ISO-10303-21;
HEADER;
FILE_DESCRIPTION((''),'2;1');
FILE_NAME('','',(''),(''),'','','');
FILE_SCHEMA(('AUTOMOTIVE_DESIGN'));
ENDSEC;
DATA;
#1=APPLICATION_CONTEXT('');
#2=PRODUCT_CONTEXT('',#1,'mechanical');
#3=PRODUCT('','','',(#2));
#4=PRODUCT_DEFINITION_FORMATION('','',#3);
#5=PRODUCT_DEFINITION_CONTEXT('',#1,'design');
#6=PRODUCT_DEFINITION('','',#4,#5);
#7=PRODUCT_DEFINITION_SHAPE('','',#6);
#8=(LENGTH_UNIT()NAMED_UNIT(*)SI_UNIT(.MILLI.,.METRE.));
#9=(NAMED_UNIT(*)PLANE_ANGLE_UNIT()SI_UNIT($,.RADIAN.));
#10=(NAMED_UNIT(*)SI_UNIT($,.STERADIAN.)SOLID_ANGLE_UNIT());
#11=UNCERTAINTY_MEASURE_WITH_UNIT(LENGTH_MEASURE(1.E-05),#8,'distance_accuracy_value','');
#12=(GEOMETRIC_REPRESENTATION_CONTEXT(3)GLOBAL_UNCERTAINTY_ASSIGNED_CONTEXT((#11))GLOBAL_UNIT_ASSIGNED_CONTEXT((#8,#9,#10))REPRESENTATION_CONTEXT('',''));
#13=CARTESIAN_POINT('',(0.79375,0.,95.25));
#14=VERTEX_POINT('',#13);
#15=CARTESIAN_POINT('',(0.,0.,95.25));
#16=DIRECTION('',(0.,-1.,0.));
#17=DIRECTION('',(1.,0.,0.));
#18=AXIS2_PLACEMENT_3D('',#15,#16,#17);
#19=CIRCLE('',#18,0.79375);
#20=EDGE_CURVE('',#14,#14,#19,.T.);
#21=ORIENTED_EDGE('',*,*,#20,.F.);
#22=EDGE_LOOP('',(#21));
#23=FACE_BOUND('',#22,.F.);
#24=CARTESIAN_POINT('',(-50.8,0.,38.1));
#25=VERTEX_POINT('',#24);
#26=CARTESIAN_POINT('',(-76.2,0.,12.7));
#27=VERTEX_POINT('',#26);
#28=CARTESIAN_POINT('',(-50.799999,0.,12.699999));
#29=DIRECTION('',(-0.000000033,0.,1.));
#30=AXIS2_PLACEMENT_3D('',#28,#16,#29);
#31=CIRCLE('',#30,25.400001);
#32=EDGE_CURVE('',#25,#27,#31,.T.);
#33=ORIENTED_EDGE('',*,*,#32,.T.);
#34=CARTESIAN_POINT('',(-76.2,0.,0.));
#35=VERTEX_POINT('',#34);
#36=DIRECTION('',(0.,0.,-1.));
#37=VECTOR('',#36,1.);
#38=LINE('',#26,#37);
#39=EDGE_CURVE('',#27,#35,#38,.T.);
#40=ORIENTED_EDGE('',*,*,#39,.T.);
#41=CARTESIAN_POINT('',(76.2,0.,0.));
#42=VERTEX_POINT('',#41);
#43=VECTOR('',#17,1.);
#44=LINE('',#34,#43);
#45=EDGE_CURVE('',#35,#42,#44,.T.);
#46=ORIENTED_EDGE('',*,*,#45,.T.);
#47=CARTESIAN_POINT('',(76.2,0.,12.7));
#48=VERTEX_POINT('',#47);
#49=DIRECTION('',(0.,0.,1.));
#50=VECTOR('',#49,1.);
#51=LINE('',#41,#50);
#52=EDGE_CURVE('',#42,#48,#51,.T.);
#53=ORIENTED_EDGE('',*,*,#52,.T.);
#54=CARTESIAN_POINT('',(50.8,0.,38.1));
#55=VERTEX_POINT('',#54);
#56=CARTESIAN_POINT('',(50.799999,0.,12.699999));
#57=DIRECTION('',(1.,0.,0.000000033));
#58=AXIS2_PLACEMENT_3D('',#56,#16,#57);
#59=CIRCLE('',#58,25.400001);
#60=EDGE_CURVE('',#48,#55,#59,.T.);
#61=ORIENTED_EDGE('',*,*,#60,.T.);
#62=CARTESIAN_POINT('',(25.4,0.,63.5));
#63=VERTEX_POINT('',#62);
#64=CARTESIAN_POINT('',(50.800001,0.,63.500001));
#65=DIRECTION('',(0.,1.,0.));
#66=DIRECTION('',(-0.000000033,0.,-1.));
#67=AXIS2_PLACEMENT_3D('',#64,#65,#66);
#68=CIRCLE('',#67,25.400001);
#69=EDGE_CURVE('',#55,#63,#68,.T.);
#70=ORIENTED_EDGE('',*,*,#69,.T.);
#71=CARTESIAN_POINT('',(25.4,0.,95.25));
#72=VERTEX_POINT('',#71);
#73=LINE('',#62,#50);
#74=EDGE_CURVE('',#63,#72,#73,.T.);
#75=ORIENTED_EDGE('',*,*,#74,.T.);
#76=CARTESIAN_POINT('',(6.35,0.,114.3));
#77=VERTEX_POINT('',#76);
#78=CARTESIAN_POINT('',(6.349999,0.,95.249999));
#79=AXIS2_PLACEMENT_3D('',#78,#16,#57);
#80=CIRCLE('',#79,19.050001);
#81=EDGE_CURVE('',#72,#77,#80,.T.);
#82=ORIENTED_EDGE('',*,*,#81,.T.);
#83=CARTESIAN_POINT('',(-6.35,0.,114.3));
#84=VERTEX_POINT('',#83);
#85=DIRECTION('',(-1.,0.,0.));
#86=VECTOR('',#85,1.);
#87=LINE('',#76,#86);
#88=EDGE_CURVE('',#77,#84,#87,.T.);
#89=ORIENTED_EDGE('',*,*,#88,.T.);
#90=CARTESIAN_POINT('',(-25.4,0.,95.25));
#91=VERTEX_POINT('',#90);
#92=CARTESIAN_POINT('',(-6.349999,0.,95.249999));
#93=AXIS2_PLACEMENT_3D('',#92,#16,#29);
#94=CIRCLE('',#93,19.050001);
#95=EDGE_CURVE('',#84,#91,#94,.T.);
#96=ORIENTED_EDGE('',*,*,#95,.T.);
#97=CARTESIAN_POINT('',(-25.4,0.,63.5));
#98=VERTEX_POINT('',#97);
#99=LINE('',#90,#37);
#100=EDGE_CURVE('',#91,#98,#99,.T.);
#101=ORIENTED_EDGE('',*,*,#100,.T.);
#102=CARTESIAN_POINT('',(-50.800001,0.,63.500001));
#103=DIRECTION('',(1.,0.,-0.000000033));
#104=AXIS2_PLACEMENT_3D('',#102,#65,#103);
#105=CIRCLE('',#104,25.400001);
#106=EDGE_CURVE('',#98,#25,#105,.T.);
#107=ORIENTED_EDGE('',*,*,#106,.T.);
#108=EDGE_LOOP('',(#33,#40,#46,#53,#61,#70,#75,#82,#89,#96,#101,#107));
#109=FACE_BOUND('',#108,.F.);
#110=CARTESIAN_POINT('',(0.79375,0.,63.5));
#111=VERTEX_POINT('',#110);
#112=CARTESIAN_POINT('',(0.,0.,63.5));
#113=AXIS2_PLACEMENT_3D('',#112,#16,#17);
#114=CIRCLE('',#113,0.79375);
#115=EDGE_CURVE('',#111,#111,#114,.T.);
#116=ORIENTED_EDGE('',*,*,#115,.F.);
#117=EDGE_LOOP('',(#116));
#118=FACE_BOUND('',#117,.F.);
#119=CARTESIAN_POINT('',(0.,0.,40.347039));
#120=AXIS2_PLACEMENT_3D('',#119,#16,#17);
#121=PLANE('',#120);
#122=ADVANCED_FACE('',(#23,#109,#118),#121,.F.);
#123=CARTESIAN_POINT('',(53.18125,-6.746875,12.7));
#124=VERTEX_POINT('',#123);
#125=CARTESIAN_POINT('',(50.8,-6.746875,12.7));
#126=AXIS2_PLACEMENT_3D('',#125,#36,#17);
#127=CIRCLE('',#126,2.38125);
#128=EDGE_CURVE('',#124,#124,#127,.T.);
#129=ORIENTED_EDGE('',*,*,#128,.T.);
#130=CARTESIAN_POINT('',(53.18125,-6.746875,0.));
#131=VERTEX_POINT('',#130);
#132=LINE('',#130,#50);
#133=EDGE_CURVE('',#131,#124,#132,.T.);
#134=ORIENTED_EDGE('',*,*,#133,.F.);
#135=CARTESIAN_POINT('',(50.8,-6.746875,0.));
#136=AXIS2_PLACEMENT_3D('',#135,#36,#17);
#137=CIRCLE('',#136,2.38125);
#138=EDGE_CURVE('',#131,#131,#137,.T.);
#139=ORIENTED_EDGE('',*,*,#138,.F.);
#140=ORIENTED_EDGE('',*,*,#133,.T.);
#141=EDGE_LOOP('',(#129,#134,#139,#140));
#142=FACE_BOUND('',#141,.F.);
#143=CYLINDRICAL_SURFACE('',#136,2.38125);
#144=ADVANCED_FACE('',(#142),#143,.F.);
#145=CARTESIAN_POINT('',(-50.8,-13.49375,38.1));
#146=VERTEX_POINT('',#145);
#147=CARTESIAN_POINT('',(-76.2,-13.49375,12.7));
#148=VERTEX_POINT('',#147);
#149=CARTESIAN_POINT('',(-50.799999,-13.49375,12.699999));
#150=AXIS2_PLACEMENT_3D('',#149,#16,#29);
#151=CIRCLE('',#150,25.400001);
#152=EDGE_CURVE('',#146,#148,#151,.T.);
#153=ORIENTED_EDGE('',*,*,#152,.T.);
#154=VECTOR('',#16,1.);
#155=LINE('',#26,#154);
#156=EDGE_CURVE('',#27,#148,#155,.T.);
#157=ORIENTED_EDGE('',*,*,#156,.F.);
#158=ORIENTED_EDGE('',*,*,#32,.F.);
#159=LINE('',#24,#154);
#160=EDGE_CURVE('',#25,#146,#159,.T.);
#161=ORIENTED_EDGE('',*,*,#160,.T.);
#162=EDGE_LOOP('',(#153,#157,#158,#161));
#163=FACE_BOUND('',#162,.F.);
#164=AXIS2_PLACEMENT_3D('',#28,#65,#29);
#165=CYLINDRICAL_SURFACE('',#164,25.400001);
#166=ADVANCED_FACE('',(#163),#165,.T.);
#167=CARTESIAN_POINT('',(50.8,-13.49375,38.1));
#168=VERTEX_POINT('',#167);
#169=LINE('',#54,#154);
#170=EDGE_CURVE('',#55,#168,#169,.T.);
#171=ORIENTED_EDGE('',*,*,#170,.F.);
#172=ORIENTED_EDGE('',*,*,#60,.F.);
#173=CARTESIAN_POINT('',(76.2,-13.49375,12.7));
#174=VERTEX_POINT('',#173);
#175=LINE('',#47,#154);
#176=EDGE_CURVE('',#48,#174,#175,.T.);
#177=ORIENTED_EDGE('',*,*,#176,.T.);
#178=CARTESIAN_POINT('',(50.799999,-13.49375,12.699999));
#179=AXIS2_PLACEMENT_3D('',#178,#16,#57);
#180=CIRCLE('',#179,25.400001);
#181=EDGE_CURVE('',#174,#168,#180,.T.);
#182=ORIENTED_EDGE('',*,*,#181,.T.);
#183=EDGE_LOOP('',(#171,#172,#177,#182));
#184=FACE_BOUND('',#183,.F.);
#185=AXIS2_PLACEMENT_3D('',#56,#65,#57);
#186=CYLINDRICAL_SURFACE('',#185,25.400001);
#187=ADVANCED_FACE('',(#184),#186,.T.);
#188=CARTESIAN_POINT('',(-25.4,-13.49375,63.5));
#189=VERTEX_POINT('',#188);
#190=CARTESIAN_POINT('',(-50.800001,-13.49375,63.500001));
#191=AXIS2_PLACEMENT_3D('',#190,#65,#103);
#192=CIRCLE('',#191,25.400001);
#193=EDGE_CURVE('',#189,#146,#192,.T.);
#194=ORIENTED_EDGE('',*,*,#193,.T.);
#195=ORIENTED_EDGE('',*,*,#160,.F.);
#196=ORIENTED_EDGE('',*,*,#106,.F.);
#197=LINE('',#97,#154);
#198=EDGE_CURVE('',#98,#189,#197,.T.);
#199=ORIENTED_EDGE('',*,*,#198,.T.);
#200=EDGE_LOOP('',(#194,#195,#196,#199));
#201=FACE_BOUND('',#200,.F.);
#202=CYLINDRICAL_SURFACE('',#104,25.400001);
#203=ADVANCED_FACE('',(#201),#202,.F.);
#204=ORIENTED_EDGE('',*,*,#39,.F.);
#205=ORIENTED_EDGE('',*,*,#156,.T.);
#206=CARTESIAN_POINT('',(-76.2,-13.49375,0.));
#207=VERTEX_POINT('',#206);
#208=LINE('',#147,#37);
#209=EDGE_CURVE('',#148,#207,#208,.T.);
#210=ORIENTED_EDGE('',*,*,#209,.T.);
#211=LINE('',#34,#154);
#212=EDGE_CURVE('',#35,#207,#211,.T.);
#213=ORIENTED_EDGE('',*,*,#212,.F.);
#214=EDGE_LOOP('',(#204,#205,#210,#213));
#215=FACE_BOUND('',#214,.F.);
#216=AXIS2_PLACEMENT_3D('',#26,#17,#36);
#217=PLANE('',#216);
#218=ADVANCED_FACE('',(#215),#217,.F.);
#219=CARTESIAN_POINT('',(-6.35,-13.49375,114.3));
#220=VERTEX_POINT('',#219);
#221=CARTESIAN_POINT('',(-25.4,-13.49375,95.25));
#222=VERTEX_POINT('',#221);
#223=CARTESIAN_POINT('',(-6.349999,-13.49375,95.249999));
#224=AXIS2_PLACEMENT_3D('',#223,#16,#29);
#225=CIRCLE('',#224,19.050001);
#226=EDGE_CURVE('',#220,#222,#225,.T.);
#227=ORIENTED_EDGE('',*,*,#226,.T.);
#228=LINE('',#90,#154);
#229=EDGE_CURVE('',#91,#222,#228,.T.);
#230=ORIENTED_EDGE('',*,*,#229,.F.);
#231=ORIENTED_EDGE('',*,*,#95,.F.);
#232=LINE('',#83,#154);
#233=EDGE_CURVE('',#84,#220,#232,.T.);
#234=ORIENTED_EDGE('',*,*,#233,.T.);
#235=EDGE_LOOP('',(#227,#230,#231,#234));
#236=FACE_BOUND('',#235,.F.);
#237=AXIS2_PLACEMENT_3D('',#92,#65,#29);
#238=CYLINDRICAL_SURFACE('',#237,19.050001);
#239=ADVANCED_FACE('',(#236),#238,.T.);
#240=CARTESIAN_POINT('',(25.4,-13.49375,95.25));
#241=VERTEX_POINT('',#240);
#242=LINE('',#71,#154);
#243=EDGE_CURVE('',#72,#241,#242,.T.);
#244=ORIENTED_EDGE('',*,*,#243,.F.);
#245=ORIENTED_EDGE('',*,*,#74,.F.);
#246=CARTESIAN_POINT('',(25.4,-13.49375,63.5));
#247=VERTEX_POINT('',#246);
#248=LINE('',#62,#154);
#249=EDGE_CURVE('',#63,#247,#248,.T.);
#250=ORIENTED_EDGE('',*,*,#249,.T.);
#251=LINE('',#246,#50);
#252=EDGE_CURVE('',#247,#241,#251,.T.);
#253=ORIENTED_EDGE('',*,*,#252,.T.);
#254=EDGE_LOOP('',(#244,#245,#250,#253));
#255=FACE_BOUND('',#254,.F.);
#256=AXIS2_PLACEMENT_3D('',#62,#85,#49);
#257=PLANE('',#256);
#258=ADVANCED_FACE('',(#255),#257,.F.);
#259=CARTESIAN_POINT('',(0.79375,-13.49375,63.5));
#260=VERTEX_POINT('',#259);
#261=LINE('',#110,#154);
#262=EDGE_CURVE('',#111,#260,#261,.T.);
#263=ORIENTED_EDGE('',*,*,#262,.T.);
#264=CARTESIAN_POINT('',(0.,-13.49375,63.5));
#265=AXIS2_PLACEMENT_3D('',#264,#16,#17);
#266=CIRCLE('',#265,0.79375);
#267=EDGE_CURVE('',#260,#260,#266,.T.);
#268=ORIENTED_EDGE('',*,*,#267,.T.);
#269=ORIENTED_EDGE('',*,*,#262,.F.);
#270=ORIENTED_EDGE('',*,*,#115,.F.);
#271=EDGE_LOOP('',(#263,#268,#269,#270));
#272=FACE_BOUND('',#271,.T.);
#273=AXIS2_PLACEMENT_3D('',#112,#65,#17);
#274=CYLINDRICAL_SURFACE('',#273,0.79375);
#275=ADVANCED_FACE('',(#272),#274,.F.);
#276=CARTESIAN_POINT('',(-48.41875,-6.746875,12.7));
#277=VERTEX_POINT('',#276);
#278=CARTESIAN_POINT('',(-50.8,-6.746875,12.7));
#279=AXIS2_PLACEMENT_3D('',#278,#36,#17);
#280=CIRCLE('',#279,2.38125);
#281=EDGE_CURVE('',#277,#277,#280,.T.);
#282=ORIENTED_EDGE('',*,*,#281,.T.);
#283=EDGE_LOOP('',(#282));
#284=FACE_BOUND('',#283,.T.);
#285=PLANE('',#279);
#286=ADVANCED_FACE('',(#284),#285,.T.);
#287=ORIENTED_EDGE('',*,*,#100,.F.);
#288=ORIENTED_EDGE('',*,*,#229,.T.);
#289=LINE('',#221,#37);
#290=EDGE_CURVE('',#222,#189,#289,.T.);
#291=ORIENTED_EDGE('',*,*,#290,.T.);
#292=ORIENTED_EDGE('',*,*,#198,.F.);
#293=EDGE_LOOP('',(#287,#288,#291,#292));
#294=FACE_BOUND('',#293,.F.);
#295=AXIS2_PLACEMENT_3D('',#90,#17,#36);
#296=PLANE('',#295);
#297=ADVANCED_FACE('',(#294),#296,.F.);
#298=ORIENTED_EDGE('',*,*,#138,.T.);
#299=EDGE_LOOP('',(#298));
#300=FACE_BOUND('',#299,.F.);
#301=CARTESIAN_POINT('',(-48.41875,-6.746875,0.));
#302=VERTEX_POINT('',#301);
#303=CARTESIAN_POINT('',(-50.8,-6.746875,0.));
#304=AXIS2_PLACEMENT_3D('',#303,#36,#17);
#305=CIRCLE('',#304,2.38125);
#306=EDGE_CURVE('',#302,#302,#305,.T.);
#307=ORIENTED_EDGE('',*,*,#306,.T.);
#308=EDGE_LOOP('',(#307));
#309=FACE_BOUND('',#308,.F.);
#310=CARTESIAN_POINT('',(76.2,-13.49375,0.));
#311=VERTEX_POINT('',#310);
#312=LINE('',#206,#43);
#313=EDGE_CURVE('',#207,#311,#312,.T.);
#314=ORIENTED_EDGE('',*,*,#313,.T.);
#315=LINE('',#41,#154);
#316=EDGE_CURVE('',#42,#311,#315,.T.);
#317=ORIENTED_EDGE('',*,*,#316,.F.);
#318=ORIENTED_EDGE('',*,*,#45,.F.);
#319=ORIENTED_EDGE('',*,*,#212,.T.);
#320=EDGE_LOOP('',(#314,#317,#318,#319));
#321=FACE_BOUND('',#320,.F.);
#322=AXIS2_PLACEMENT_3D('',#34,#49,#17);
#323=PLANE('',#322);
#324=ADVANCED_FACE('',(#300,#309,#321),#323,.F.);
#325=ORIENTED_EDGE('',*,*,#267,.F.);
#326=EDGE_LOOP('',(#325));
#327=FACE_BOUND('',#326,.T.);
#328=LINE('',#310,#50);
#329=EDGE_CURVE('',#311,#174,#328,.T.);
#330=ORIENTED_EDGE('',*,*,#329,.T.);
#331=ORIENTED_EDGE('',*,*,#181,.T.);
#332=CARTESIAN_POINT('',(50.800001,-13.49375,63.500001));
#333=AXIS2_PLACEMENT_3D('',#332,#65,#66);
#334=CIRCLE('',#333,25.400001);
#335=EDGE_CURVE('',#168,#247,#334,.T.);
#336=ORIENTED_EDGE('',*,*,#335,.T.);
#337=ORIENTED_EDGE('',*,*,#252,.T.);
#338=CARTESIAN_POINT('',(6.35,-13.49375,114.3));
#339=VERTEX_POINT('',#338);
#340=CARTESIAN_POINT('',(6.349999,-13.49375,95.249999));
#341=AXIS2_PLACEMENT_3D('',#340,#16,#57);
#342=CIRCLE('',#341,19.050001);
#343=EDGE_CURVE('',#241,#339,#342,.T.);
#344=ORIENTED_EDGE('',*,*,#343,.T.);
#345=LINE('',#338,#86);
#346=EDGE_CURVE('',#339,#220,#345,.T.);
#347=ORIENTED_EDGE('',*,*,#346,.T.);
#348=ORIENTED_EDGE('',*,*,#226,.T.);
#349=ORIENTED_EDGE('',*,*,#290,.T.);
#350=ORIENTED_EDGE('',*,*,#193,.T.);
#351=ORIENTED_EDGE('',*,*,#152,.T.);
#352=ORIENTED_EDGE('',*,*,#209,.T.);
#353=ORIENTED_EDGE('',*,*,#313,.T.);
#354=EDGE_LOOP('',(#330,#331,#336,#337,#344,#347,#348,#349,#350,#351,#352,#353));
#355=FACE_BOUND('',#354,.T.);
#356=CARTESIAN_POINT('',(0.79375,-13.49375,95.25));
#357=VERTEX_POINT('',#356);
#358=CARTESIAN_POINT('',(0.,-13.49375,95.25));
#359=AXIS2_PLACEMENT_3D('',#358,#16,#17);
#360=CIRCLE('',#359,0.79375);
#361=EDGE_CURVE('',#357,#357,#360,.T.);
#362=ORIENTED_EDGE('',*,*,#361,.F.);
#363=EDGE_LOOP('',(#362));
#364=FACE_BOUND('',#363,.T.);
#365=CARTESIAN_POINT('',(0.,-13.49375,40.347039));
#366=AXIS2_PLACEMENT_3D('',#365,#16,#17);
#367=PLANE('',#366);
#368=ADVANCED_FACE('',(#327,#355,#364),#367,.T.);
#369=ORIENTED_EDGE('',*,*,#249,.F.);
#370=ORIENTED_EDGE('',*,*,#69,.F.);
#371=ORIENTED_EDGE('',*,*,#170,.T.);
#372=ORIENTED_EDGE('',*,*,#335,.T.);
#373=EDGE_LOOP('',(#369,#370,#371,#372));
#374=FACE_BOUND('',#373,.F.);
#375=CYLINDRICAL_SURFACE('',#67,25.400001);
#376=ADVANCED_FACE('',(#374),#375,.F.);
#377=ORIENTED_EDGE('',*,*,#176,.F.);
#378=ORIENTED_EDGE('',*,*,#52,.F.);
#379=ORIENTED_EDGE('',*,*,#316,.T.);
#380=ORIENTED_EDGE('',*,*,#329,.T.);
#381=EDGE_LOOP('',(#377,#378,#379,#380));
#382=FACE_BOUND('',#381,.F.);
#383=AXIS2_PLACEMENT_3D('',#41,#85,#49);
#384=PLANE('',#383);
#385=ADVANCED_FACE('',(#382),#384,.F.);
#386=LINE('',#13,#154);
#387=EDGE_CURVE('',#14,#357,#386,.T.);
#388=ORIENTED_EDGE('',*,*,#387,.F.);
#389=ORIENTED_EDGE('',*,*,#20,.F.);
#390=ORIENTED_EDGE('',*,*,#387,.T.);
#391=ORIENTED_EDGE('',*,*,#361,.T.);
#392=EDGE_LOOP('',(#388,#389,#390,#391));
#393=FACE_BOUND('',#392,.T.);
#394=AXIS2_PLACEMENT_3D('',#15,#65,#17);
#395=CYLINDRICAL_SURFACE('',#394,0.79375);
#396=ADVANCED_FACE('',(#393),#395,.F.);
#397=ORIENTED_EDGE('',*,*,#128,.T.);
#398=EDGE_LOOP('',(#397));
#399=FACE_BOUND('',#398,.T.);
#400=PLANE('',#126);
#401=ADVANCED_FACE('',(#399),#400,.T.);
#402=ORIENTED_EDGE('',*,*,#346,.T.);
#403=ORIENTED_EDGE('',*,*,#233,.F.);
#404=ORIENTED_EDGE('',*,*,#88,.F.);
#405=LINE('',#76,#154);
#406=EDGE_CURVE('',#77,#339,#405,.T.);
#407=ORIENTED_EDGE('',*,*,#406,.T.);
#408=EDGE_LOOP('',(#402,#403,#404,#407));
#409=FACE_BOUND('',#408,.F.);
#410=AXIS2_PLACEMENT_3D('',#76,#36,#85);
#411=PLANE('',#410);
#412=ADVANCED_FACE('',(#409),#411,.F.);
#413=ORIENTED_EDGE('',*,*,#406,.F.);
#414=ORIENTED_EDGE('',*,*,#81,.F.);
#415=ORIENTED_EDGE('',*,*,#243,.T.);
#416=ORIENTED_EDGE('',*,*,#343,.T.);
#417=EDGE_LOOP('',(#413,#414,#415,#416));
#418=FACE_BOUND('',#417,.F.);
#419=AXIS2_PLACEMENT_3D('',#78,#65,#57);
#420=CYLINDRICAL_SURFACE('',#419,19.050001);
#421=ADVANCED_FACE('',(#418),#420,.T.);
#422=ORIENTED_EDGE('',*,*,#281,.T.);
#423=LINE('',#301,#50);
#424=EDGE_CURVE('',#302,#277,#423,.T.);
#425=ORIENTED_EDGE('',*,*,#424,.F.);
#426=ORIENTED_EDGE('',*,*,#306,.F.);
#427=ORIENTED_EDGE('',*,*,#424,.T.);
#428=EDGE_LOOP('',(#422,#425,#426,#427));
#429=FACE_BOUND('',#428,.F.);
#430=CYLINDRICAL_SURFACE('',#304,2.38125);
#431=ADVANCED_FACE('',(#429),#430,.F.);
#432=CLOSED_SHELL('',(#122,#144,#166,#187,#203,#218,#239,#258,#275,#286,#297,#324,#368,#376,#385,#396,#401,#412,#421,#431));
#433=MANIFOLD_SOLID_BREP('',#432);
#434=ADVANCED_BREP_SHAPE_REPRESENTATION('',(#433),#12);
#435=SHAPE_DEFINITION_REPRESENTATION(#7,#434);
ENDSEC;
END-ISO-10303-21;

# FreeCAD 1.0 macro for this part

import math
import FreeCAD as App
import Part
import Sketcher
Q = App.Units.Quantity

doc = App.newDocument("Part")
params = doc.addObject("Spreadsheet::Sheet", "Params")
for row, (alias, value) in enumerate([
    ("sketch1_radius", "1 in"),
    ("sketch1_width", "6 in"),
    ("sketch1_radius2", "0.75 in"),
    ("sketch1_diameter", "0.0625 in"),
    ("pad1_length", "0.53125 in"),
    ("sketch2_diameter", "0.1875 in"),
    ("pocket1_length", "0.5 in"),
], start=1):
    params.set(f"A{row}", alias)
    params.set(f"B{row}", "=" + value)
    params.setAlias(f"B{row}", alias)

body = doc.addObject("PartDesign::Body", "Body")

# Sketch on XZ plane
sketch1 = body.newObject("Sketcher::SketchObject", "Sketch")
sketch1.AttachmentSupport = (doc.getObject("XZ_Plane"), [""])
sketch1.MapMode = "FlatFace"
sketch1.addGeometry(Part.LineSegment(App.Vector(-76.2, 12.7, 0), App.Vector(-76.2, 0, 0)), False)
sketch1.addGeometry(Part.LineSegment(App.Vector(-76.2, 0, 0), App.Vector(76.2, 0, 0)), False)
sketch1.addGeometry(Part.LineSegment(App.Vector(76.2, 0, 0), App.Vector(76.2, 12.7, 0)), False)
sketch1.addGeometry(Part.ArcOfCircle(Part.Circle(App.Vector(50.799999, 12.699999, 0), App.Vector(0, 0, 1), 25.400001), math.radians(0.000002), math.radians(89.999998)), False)
sketch1.addGeometry(Part.ArcOfCircle(Part.Circle(App.Vector(50.800001, 63.500001, 0), App.Vector(0, 0, 1), 25.400001), math.radians(-179.999998), math.radians(-90.000002)), False)
sketch1.addGeometry(Part.LineSegment(App.Vector(25.4, 63.5, 0), App.Vector(25.4, 95.25, 0)), False)
sketch1.addGeometry(Part.ArcOfCircle(Part.Circle(App.Vector(6.349999, 95.249999, 0), App.Vector(0, 0, 1), 19.050001), math.radians(0.000002), math.radians(89.999998)), False)
sketch1.addGeometry(Part.LineSegment(App.Vector(6.35, 114.3, 0), App.Vector(-6.35, 114.3, 0)), False)
sketch1.addGeometry(Part.ArcOfCircle(Part.Circle(App.Vector(-6.349999, 95.249999, 0), App.Vector(0, 0, 1), 19.050001), math.radians(90.000002), math.radians(179.999998)), False)
sketch1.addGeometry(Part.LineSegment(App.Vector(-25.4, 95.25, 0), App.Vector(-25.4, 63.5, 0)), False)
sketch1.addGeometry(Part.ArcOfCircle(Part.Circle(App.Vector(-50.800001, 63.500001, 0), App.Vector(0, 0, 1), 25.400001), math.radians(-89.999998), math.radians(-0.000002)), False)
sketch1.addGeometry(Part.ArcOfCircle(Part.Circle(App.Vector(-50.799999, 12.699999, 0), App.Vector(0, 0, 1), 25.400001), math.radians(90.000002), math.radians(179.999998)), False)
sketch1.addGeometry(Part.Circle(App.Vector(0, 63.5, 0), App.Vector(0, 0, 1), 0.79375), False)
sketch1.addGeometry(Part.Circle(App.Vector(0, 95.25, 0), App.Vector(0, 0, 1), 0.79375), False)
sketch1.addConstraint(Sketcher.Constraint("Coincident", 0, 2, 1, 1))
sketch1.addConstraint(Sketcher.Constraint("Coincident", 1, 2, 2, 1))
sketch1.addConstraint(Sketcher.Constraint("Tangent", 2, 2, 3, 1))
sketch1.addConstraint(Sketcher.Constraint("Tangent", 3, 2, 4, 2))
sketch1.addConstraint(Sketcher.Constraint("Tangent", 4, 1, 5, 1))
sketch1.addConstraint(Sketcher.Constraint("Tangent", 5, 2, 6, 1))
sketch1.addConstraint(Sketcher.Constraint("Tangent", 6, 2, 7, 1))
sketch1.addConstraint(Sketcher.Constraint("Tangent", 7, 2, 8, 1))
sketch1.addConstraint(Sketcher.Constraint("Tangent", 8, 2, 9, 1))
sketch1.addConstraint(Sketcher.Constraint("Tangent", 9, 2, 10, 2))
sketch1.addConstraint(Sketcher.Constraint("Tangent", 10, 1, 11, 1))
sketch1.addConstraint(Sketcher.Constraint("Tangent", 11, 2, 0, 1))
sketch1.addConstraint(Sketcher.Constraint("Vertical", 0))
sketch1.addConstraint(Sketcher.Constraint("Horizontal", 1))
sketch1.addConstraint(Sketcher.Constraint("Vertical", 2))
sketch1.addConstraint(Sketcher.Constraint("Vertical", 5))
sketch1.addConstraint(Sketcher.Constraint("Horizontal", 7))
sketch1.addConstraint(Sketcher.Constraint("Vertical", 9))
sketch1.addConstraint(Sketcher.Constraint("Equal", 3, 4))
sketch1.addConstraint(Sketcher.Constraint("Equal", 6, 8))
sketch1.addConstraint(Sketcher.Constraint("Equal", 4, 10))
sketch1.addConstraint(Sketcher.Constraint("Equal", 10, 11))
sketch1.addConstraint(Sketcher.Constraint("Equal", 12, 13))
sketch1.addConstraint(Sketcher.Constraint("Symmetric", 0, 2, 1, 2, -1, 1))
sketch1.addConstraint(Sketcher.Constraint("Symmetric", 4, 3, 10, 3, -2))
sketch1.addConstraint(Sketcher.Constraint("PointOnObject", 12, 3, -2))
sketch1.addConstraint(Sketcher.Constraint("PointOnObject", 13, 3, -2))
sketch1.addConstraint(Sketcher.Constraint("Horizontal", 10, 3, 12, 3))
sketch1.addConstraint(Sketcher.Constraint("Horizontal", 8, 3, 13, 3))
sketch1.addConstraint(Sketcher.Constraint("Vertical", 3, 3, 4, 3))
sketch1.addConstraint(Sketcher.Constraint("Equal", 7, 0))
sketch1.addConstraint(Sketcher.Constraint("Radius", 3, Q("1 in")))
sketch1.addConstraint(Sketcher.Constraint("DistanceX", 1, 1, 1, 2, Q("6 in")))
sketch1.addConstraint(Sketcher.Constraint("Radius", 6, Q("0.75 in")))
sketch1.addConstraint(Sketcher.Constraint("Diameter", 12, Q("0.0625 in")))
sketch1.addConstraint(Sketcher.Constraint("DistanceY", 12, 3, 6, 2, Q("2 in")))
sketch1.setExpression("Constraints[31]", "Params.sketch1_radius")
sketch1.setExpression("Constraints[32]", "Params.sketch1_width")
sketch1.setExpression("Constraints[33]", "Params.sketch1_radius2")
sketch1.setExpression("Constraints[34]", "Params.sketch1_diameter")
pad1 = body.newObject("PartDesign::Pad", "Pad")
pad1.Profile = sketch1
pad1.setExpression("Length", "Params.pad1_length")

# Sketch on XY plane
sketch2 = body.newObject("Sketcher::SketchObject", "Sketch001")
sketch2.AttachmentSupport = (doc.getObject("XY_Plane"), [""])
sketch2.MapMode = "FlatFace"
sketch2.addGeometry(Part.Circle(App.Vector(-50.8, -6.746875, 0), App.Vector(0, 0, 1), 2.38125), False)
sketch2.addGeometry(Part.Circle(App.Vector(50.8, -6.746875, 0), App.Vector(0, 0, 1), 2.38125), False)
sketch2.addConstraint(Sketcher.Constraint("Equal", 0, 1))
sketch2.addConstraint(Sketcher.Constraint("Symmetric", 0, 3, 1, 3, -2))
sketch2.addConstraint(Sketcher.Constraint("Diameter", 0, Q("0.1875 in")))
sketch2.addConstraint(Sketcher.Constraint("DistanceX", 0, 3, -1, 1, Q("2 in")))
sketch2.addConstraint(Sketcher.Constraint("DistanceY", 0, 3, -1, 1, Q("0.265625 in")))
sketch2.setExpression("Constraints[2]", "Params.sketch2_diameter")
pocket1 = body.newObject("PartDesign::Pocket", "Pocket")
pocket1.Profile = sketch2
pocket1.setExpression("Length", "Params.pocket1_length")
pocket1.Reversed = True

doc.recompute()
